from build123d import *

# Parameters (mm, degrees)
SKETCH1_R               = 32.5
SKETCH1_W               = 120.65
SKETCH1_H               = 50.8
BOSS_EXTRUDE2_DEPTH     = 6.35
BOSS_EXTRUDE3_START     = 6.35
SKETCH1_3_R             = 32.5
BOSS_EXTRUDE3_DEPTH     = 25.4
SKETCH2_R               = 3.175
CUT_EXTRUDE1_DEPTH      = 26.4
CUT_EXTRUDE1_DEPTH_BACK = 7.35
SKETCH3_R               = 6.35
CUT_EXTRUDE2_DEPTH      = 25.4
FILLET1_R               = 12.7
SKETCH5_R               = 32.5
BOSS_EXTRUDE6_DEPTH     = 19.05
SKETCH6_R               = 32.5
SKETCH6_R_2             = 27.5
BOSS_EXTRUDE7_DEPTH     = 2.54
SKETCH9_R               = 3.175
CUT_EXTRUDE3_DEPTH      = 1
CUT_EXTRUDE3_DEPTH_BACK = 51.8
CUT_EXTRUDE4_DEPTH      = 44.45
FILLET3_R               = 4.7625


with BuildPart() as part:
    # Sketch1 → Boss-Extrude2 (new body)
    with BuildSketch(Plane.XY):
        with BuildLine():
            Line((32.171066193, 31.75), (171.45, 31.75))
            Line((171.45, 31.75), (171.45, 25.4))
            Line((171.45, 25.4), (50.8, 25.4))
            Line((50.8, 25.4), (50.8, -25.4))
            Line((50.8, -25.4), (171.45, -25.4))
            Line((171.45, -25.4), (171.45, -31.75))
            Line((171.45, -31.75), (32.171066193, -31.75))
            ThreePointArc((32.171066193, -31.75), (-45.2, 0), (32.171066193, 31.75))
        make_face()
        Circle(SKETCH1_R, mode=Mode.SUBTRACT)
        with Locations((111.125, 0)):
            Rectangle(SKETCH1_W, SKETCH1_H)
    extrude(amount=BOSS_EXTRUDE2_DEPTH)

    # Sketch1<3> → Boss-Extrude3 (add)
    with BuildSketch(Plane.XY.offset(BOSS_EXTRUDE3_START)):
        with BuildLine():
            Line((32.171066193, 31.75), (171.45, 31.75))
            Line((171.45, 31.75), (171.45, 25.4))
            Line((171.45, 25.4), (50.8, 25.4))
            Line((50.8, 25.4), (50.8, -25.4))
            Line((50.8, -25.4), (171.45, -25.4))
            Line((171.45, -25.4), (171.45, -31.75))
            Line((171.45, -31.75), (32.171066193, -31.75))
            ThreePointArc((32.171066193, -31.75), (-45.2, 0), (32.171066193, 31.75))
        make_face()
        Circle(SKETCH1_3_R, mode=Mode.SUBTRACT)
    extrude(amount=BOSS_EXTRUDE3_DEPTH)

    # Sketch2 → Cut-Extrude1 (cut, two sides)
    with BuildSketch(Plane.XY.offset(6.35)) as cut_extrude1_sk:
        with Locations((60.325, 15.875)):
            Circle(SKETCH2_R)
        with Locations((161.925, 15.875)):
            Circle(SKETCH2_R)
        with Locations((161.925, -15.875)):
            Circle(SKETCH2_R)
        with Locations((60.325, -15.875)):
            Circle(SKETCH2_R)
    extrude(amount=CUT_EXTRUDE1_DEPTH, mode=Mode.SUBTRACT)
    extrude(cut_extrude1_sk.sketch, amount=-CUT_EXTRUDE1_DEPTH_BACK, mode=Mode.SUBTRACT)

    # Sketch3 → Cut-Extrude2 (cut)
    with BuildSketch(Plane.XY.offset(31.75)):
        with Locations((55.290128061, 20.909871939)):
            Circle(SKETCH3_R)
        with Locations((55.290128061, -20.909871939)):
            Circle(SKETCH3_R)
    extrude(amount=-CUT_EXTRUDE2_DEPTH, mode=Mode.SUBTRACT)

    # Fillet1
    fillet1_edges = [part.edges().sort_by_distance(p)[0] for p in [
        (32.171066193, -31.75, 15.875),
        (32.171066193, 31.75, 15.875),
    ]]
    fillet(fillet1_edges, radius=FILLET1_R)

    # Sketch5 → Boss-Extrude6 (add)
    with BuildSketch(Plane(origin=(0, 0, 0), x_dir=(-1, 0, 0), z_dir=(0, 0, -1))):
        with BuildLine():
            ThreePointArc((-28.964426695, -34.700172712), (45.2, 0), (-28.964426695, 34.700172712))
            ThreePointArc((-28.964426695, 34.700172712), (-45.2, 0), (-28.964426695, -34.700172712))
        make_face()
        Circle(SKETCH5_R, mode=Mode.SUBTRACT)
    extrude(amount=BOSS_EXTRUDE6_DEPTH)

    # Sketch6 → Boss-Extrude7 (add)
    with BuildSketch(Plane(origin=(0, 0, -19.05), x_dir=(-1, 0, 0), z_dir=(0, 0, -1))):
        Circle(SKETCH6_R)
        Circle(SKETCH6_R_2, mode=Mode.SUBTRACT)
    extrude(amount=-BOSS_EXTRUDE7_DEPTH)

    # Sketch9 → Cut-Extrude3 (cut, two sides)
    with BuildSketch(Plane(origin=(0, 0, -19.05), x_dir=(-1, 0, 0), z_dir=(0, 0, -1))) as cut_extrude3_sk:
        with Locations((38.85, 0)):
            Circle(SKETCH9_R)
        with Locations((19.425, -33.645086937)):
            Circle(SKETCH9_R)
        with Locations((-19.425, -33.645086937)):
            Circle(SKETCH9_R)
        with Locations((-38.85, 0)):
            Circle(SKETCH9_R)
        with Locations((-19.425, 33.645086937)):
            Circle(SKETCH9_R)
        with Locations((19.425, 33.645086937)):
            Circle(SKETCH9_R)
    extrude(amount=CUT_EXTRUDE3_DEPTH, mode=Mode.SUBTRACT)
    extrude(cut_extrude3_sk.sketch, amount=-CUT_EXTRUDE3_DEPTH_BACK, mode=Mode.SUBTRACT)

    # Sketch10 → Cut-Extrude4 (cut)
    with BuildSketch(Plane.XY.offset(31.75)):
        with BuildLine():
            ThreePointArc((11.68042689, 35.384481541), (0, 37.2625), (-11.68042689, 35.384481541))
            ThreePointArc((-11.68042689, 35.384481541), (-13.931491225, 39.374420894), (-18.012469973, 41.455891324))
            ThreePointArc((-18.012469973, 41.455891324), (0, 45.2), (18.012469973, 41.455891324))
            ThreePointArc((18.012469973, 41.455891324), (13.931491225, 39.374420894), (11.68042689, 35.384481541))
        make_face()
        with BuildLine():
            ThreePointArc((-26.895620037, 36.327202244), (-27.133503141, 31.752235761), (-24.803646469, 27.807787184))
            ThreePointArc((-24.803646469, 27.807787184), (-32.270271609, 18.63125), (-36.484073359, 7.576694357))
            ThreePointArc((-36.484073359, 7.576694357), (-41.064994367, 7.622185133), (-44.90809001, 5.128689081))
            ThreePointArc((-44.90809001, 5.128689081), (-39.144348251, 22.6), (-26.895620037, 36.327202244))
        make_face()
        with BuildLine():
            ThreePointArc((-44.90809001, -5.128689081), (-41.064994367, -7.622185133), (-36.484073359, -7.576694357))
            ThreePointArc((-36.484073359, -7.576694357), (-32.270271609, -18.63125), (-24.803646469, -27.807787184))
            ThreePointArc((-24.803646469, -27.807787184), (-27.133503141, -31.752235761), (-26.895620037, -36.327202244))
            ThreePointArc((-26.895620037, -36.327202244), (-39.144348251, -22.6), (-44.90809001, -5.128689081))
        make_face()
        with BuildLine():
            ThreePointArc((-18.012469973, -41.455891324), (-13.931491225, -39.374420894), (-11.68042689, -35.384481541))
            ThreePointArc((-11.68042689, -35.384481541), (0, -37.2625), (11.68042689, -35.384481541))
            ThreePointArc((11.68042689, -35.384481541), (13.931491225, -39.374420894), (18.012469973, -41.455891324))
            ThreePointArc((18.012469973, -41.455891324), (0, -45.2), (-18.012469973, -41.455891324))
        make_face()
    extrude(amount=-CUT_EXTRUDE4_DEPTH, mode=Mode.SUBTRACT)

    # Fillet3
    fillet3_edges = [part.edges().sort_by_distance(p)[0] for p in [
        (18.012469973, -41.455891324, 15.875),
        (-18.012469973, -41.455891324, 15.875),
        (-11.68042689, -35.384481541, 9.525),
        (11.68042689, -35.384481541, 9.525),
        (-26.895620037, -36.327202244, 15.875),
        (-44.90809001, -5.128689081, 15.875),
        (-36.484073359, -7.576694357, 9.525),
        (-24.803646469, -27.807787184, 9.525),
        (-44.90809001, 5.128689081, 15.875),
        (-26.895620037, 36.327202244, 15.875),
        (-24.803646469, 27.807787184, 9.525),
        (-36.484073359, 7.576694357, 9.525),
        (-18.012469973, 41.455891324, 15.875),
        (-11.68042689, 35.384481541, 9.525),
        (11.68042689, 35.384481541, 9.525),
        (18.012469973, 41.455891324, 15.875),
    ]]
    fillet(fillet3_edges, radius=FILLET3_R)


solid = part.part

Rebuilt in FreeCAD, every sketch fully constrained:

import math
import FreeCAD as App
import Part
import Sketcher
from FreeCAD import Vector
Q = App.Units.Quantity


def edges_at(feature, points):
    """Names of the edges that pass closest to the given points."""
    edges = feature.Shape.Edges
    near = lambda p: min(range(len(edges)), key=lambda i: edges[i].distToShape(Part.Vertex(*p))[0])
    return sorted({f"Edge{near(p) + 1}" for p in points})

doc = App.newDocument("Part")
body = doc.addObject("PartDesign::Body", "Body")

# Sketch on XY plane
sketch1 = body.newObject("Sketcher::SketchObject", "Sketch")
sketch1.AttachmentSupport = (doc.getObject("XY_Plane"), [""])
sketch1.MapMode = "FlatFace"
sketch1.addGeometry(Part.LineSegment(Vector(171, 32, 0), Vector(32, 32, 0)), False)
sketch1.addGeometry(Part.ArcOfCircle(Part.Circle(Vector(0, 0, 0), Vector(0, 0, 1), 45), math.radians(45), math.radians(315)), False)
sketch1.addGeometry(Part.LineSegment(Vector(32, -32, 0), Vector(171, -32, 0)), False)
sketch1.addGeometry(Part.LineSegment(Vector(171, -32, 0), Vector(171, 32, 0)), False)
sketch1.addGeometry(Part.Circle(Vector(0, 0, 0), Vector(0, 0, 1), 32), False)
sketch1.addConstraint(Sketcher.Constraint("Coincident", 0, 2, 1, 1))
sketch1.addConstraint(Sketcher.Constraint("Coincident", 1, 2, 2, 1))
sketch1.addConstraint(Sketcher.Constraint("Coincident", 2, 2, 3, 1))
sketch1.addConstraint(Sketcher.Constraint("Coincident", 3, 2, 0, 1))
sketch1.addConstraint(Sketcher.Constraint("Horizontal", 0))
sketch1.addConstraint(Sketcher.Constraint("Horizontal", 2))
sketch1.addConstraint(Sketcher.Constraint("Vertical", 3))
sketch1.addConstraint(Sketcher.Constraint("Coincident", 1, 3, -1, 1))
sketch1.addConstraint(Sketcher.Constraint("Coincident", 4, 3, -1, 1))
sketch1.addConstraint(Sketcher.Constraint("Vertical", 0, 2, 1, 2))
sketch1.addConstraint(Sketcher.Constraint("DistanceY", 3, 1, 3, 2, Q("2.5 in")))
sketch1.addConstraint(Sketcher.Constraint("Diameter", 4, Q("65 mm")))
sketch1.addConstraint(Sketcher.Constraint("DistanceX", -1, 1, 2, 2, Q("6.75 in")))
sketch1.addConstraint(Sketcher.Constraint("Radius", 1, Q("45.2 mm")))
pad1 = body.newObject("PartDesign::Pad", "Pad")
pad1.Profile = sketch1
pad1.Length = Q("0.25 in")

# Sketch on XY plane
sketch2 = body.newObject("Sketcher::SketchObject", "Sketch001")
sketch2.AttachmentSupport = (doc.getObject("XY_Plane"), [""])
sketch2.MapMode = "FlatFace"
sketch2.AttachmentOffset = App.Placement(Vector(0, 0, 0.25 * 25.4), App.Rotation())
sketch2.addGeometry(Part.LineSegment(Vector(171, 32, 0), Vector(32, 32, 0)), False)
sketch2.addGeometry(Part.ArcOfCircle(Part.Circle(Vector(0, 0, 0), Vector(0, 0, 1), 45), math.radians(45), math.radians(315)), False)
sketch2.addGeometry(Part.LineSegment(Vector(32, -32, 0), Vector(171, -32, 0)), False)
sketch2.addGeometry(Part.LineSegment(Vector(171, -32, 0), Vector(171, -25, 0)), False)
sketch2.addGeometry(Part.LineSegment(Vector(171, -25, 0), Vector(51, -25, 0)), False)
sketch2.addGeometry(Part.LineSegment(Vector(51, -25, 0), Vector(51, 25, 0)), False)
sketch2.addGeometry(Part.LineSegment(Vector(51, 25, 0), Vector(171, 25, 0)), False)
sketch2.addGeometry(Part.LineSegment(Vector(171, 25, 0), Vector(171, 32, 0)), False)
sketch2.addGeometry(Part.Circle(Vector(0, 0, 0), Vector(0, 0, 1), 32), False)
sketch2.addConstraint(Sketcher.Constraint("Coincident", 0, 2, 1, 1))
sketch2.addConstraint(Sketcher.Constraint("Coincident", 1, 2, 2, 1))
sketch2.addConstraint(Sketcher.Constraint("Coincident", 2, 2, 3, 1))
sketch2.addConstraint(Sketcher.Constraint("Coincident", 3, 2, 4, 1))
sketch2.addConstraint(Sketcher.Constraint("Coincident", 4, 2, 5, 1))
sketch2.addConstraint(Sketcher.Constraint("Coincident", 5, 2, 6, 1))
sketch2.addConstraint(Sketcher.Constraint("Coincident", 6, 2, 7, 1))
sketch2.addConstraint(Sketcher.Constraint("Coincident", 7, 2, 0, 1))
sketch2.addConstraint(Sketcher.Constraint("Horizontal", 0))
sketch2.addConstraint(Sketcher.Constraint("Horizontal", 2))
sketch2.addConstraint(Sketcher.Constraint("Vertical", 3))
sketch2.addConstraint(Sketcher.Constraint("Horizontal", 4))
sketch2.addConstraint(Sketcher.Constraint("Vertical", 5))
sketch2.addConstraint(Sketcher.Constraint("Horizontal", 6))
sketch2.addConstraint(Sketcher.Constraint("Vertical", 7))
sketch2.addConstraint(Sketcher.Constraint("Coincident", 1, 3, -1, 1))
sketch2.addConstraint(Sketcher.Constraint("Coincident", 8, 3, -1, 1))
sketch2.addConstraint(Sketcher.Constraint("Symmetric", 3, 2, 6, 2, -1))
sketch2.addConstraint(Sketcher.Constraint("Vertical", 0, 2, 1, 2))
sketch2.addConstraint(Sketcher.Constraint("DistanceY", 5, 1, 5, 2, Q("2 in")))
sketch2.addConstraint(Sketcher.Constraint("DistanceX", -1, 1, 4, 2, Q("2 in")))
sketch2.addConstraint(Sketcher.Constraint("DistanceX", 4, 2, 4, 1, Q("4.75 in")))
sketch2.addConstraint(Sketcher.Constraint("DistanceY", 3, 1, 3, 2, Q("0.25 in")))
sketch2.addConstraint(Sketcher.Constraint("Diameter", 8, Q("65 mm")))
sketch2.addConstraint(Sketcher.Constraint("Radius", 1, Q("45.2 mm")))
pad2 = body.newObject("PartDesign::Pad", "Pad001")
pad2.Profile = sketch2
pad2.Length = Q("1 in")

# Sketch on XY plane
sketch3 = body.newObject("Sketcher::SketchObject", "Sketch002")
sketch3.AttachmentSupport = (doc.getObject("XY_Plane"), [""])
sketch3.MapMode = "FlatFace"
sketch3.AttachmentOffset = App.Placement(Vector(0, 0, 0.25 * 25.4), App.Rotation())
sketch3.addGeometry(Part.Circle(Vector(60.3, 15.9, 0), Vector(0, 0, 1), 3.2), False)
sketch3.addGeometry(Part.Circle(Vector(161.9, 15.9, 0), Vector(0, 0, 1), 3.2), False)
sketch3.addGeometry(Part.Circle(Vector(161.9, -15.9, 0), Vector(0, 0, 1), 3.2), False)
sketch3.addGeometry(Part.Circle(Vector(60.3, -15.9, 0), Vector(0, 0, 1), 3.2), False)
sketch3.addConstraint(Sketcher.Constraint("Equal", 0, 1))
sketch3.addConstraint(Sketcher.Constraint("Equal", 1, 2))
sketch3.addConstraint(Sketcher.Constraint("Equal", 2, 3))
sketch3.addConstraint(Sketcher.Constraint("Symmetric", 1, 3, 2, 3, -1))
sketch3.addConstraint(Sketcher.Constraint("Symmetric", 0, 3, 3, 3, -1))
sketch3.addConstraint(Sketcher.Constraint("Horizontal", 0, 3, 1, 3))
sketch3.addConstraint(Sketcher.Constraint("Diameter", 0, Q("0.25 in")))
sketch3.addConstraint(Sketcher.Constraint("DistanceX", 0, 3, 1, 3, Q("4 in")))
sketch3.addConstraint(Sketcher.Constraint("DistanceY", 2, 3, 1, 3, Q("1.25 in")))
sketch3.addConstraint(Sketcher.Constraint("DistanceX", -1, 1, 0, 3, Q("2.375 in")))
pocket1 = body.newObject("PartDesign::Pocket", "Pocket")
pocket1.Profile = sketch3
pocket1.Type = "ThroughAll"
pocket1.Midplane = True

# Sketch on XY plane
sketch4 = body.newObject("Sketcher::SketchObject", "Sketch003")
sketch4.AttachmentSupport = (doc.getObject("XY_Plane"), [""])
sketch4.MapMode = "FlatFace"
sketch4.AttachmentOffset = App.Placement(Vector(0, 0, 1.25 * 25.4), App.Rotation())
sketch4.addGeometry(Part.Circle(Vector(55, 21, 0), Vector(0, 0, 1), 6), False)
sketch4.addGeometry(Part.Circle(Vector(55, -21, 0), Vector(0, 0, 1), 6), False)
sketch4.addConstraint(Sketcher.Constraint("Equal", 0, 1))
sketch4.addConstraint(Sketcher.Constraint("Symmetric", 0, 3, 1, 3, -1))
sketch4.addConstraint(Sketcher.Constraint("Diameter", 0, Q("0.5 in")))
sketch4.addConstraint(Sketcher.Constraint("DistanceX", -1, 1, 0, 3, Q("55.290128 mm")))
sketch4.addConstraint(Sketcher.Constraint("DistanceY", -1, 1, 0, 3, Q("20.909872 mm")))
pocket2 = body.newObject("PartDesign::Pocket", "Pocket001")
pocket2.Profile = sketch4
pocket2.Length = Q("1 in")
doc.recompute()

fillet = body.newObject("PartDesign::Fillet", "Fillet")
fillet.Base = (pocket2, edges_at(pocket2, [(32.171, -31.75, 15.875), (32.171, 31.75, 15.875)]))
fillet.Radius = Q("0.5 in")

# Sketch on XY plane
sketch5 = body.newObject("Sketcher::SketchObject", "Sketch004")
sketch5.AttachmentSupport = (doc.getObject("XY_Plane"), [""])
sketch5.MapMode = "FlatFace"
sketch5.addGeometry(Part.ArcOfCircle(Part.Circle(Vector(0, 0, 0), Vector(0, 0, 1), 45), math.radians(50), math.radians(310)), False)
sketch5.addGeometry(Part.ArcOfCircle(Part.Circle(Vector(0, 0, 0), Vector(0, 0, 1), 45), math.radians(-50), math.radians(50)), False)
sketch5.addGeometry(Part.Circle(Vector(0, 0, 0), Vector(0, 0, 1), 32), False)
sketch5.addConstraint(Sketcher.Constraint("Tangent", 0, 1, 1, 2))
sketch5.addConstraint(Sketcher.Constraint("Coincident", 1, 1, 0, 2))
sketch5.addConstraint(Sketcher.Constraint("Coincident", 0, 3, -1, 1))
sketch5.addConstraint(Sketcher.Constraint("Coincident", 2, 3, -1, 1))
sketch5.addConstraint(Sketcher.Constraint("Vertical", 0, 1, 1, 1))
sketch5.addConstraint(Sketcher.Constraint("Diameter", 2, Q("65 mm")))
sketch5.addConstraint(Sketcher.Constraint("Radius", 0, Q("45.2 mm")))
sketch5.addConstraint(Sketcher.Constraint("DistanceX", -1, 1, 0, 1, Q("28.964427 mm")))
pad3 = body.newObject("PartDesign::Pad", "Pad002")
pad3.Profile = sketch5
pad3.Length = Q("0.75 in")
pad3.Reversed = True

# Sketch on XY plane
sketch6 = body.newObject("Sketcher::SketchObject", "Sketch005")
sketch6.AttachmentSupport = (doc.getObject("XY_Plane"), [""])
sketch6.MapMode = "FlatFace"
sketch6.AttachmentOffset = App.Placement(Vector(0, 0, -0.75 * 25.4), App.Rotation())
sketch6.addGeometry(Part.Circle(Vector(0, 0, 0), Vector(0, 0, 1), 32), False)
sketch6.addGeometry(Part.Circle(Vector(0, 0, 0), Vector(0, 0, 1), 28), False)
sketch6.addConstraint(Sketcher.Constraint("Coincident", 0, 3, -1, 1))
sketch6.addConstraint(Sketcher.Constraint("Coincident", 1, 3, -1, 1))
sketch6.addConstraint(Sketcher.Constraint("Diameter", 0, Q("65 mm")))
sketch6.addConstraint(Sketcher.Constraint("Diameter", 1, Q("55 mm")))
pad4 = body.newObject("PartDesign::Pad", "Pad003")
pad4.Profile = sketch6
pad4.Length = Q("0.1 in")

# Sketch on XY plane
sketch7 = body.newObject("Sketcher::SketchObject", "Sketch006")
sketch7.AttachmentSupport = (doc.getObject("XY_Plane"), [""])
sketch7.MapMode = "FlatFace"
sketch7.AttachmentOffset = App.Placement(Vector(0, 0, -0.75 * 25.4), App.Rotation())
sketch7.addGeometry(Part.Circle(Vector(-38.9, 0, 0), Vector(0, 0, 1), 3.2), False)
sketch7.addGeometry(Part.Circle(Vector(-19.4, -33.6, 0), Vector(0, 0, 1), 3.2), False)
sketch7.addGeometry(Part.Circle(Vector(19.4, -33.6, 0), Vector(0, 0, 1), 3.2), False)
sketch7.addGeometry(Part.Circle(Vector(38.9, 0, 0), Vector(0, 0, 1), 3.2), False)
sketch7.addGeometry(Part.Circle(Vector(19.4, 33.6, 0), Vector(0, 0, 1), 3.2), False)
sketch7.addGeometry(Part.Circle(Vector(-19.4, 33.6, 0), Vector(0, 0, 1), 3.2), False)
sketch7.addConstraint(Sketcher.Constraint("Equal", 0, 1))
sketch7.addConstraint(Sketcher.Constraint("Equal", 1, 2))
sketch7.addConstraint(Sketcher.Constraint("Equal", 2, 3))
sketch7.addConstraint(Sketcher.Constraint("Equal", 3, 4))
sketch7.addConstraint(Sketcher.Constraint("Equal", 4, 5))
sketch7.addConstraint(Sketcher.Constraint("Symmetric", 0, 3, 3, 3, -1, 1))
sketch7.addConstraint(Sketcher.Constraint("Symmetric", 1, 3, 4, 3, -1, 1))
sketch7.addConstraint(Sketcher.Constraint("Symmetric", 2, 3, 5, 3, -1, 1))
sketch7.addConstraint(Sketcher.Constraint("Symmetric", 1, 3, 2, 3, -2))
sketch7.addConstraint(Sketcher.Constraint("PointOnObject", 0, 3, -1))
sketch7.addConstraint(Sketcher.Constraint("Diameter", 0, Q("0.25 in")))
sketch7.addConstraint(Sketcher.Constraint("DistanceX", 0, 3, -1, 1, Q("38.85 mm")))
sketch7.addConstraint(Sketcher.Constraint("DistanceX", 1, 3, -1, 1, Q("19.425 mm")))
sketch7.addConstraint(Sketcher.Constraint("DistanceY", 1, 3, -1, 1, Q("33.645087 mm")))
pocket3 = body.newObject("PartDesign::Pocket", "Pocket002")
pocket3.Profile = sketch7
pocket3.Type = "ThroughAll"
pocket3.Midplane = True

# Sketch on XY plane
sketch8 = body.newObject("Sketcher::SketchObject", "Sketch007")
sketch8.AttachmentSupport = (doc.getObject("XY_Plane"), [""])
sketch8.MapMode = "FlatFace"
sketch8.AttachmentOffset = App.Placement(Vector(0, 0, 1.25 * 25.4), App.Rotation())
sketch8.addGeometry(Part.ArcOfCircle(Part.Circle(Vector(0, 0, 0), Vector(0, 0, 1), 37), math.radians(72), math.radians(108)), False)
sketch8.addGeometry(Part.ArcOfCircle(Part.Circle(Vector(19, 34, 0), Vector(0, 0, 1), 8), math.radians(100), math.radians(167)), False)
sketch8.addGeometry(Part.ArcOfCircle(Part.Circle(Vector(0, 0, 0), Vector(0, 0, 1), 45), math.radians(67), math.radians(113)), False)
sketch8.addGeometry(Part.ArcOfCircle(Part.Circle(Vector(-19, 34, 0), Vector(0, 0, 1), 8), math.radians(13), math.radians(80)), False)
sketch8.addGeometry(Part.ArcOfCircle(Part.Circle(Vector(-19, 34, 0), Vector(0, 0, 1), 8), math.radians(160), math.radians(227)), False)
sketch8.addGeometry(Part.ArcOfCircle(Part.Circle(Vector(0, 0, 0), Vector(0, 0, 1), 45), math.radians(127), math.radians(173)), False)
sketch8.addGeometry(Part.ArcOfCircle(Part.Circle(Vector(-39, 0, 0), Vector(0, 0, 1), 8), math.radians(73), math.radians(140)), False)
sketch8.addGeometry(Part.ArcOfCircle(Part.Circle(Vector(0, 0, 0), Vector(0, 0, 1), 37), math.radians(132), math.radians(168)), False)
sketch8.addGeometry(Part.ArcOfCircle(Part.Circle(Vector(-39, 0, 0), Vector(0, 0, 1), 8), math.radians(-140), math.radians(-73)), False)
sketch8.addGeometry(Part.ArcOfCircle(Part.Circle(Vector(0, 0, 0), Vector(0, 0, 1), 45), math.radians(-173), math.radians(-127)), False)
sketch8.addGeometry(Part.ArcOfCircle(Part.Circle(Vector(-19, -34, 0), Vector(0, 0, 1), 8), math.radians(133), math.radians(200)), False)
sketch8.addGeometry(Part.ArcOfCircle(Part.Circle(Vector(0, 0, 0), Vector(0, 0, 1), 37), math.radians(-168), math.radians(-132)), False)
sketch8.addGeometry(Part.ArcOfCircle(Part.Circle(Vector(-19, -34, 0), Vector(0, 0, 1), 8), math.radians(-80), math.radians(-13)), False)
sketch8.addGeometry(Part.ArcOfCircle(Part.Circle(Vector(0, 0, 0), Vector(0, 0, 1), 45), math.radians(-113), math.radians(-67)), False)
sketch8.addGeometry(Part.ArcOfCircle(Part.Circle(Vector(19, -34, 0), Vector(0, 0, 1), 8), math.radians(-167), math.radians(-100)), False)
sketch8.addGeometry(Part.ArcOfCircle(Part.Circle(Vector(0, 0, 0), Vector(0, 0, 1), 37), math.radians(-108), math.radians(-72)), False)
sketch8.addConstraint(Sketcher.Constraint("Coincident", 0, 1, 1, 2))
sketch8.addConstraint(Sketcher.Constraint("Coincident", 1, 1, 2, 1))
sketch8.addConstraint(Sketcher.Constraint("Coincident", 2, 2, 3, 2))
sketch8.addConstraint(Sketcher.Constraint("Coincident", 3, 1, 0, 2))
sketch8.addConstraint(Sketcher.Constraint("Coincident", 4, 1, 5, 1))
sketch8.addConstraint(Sketcher.Constraint("Coincident", 5, 2, 6, 2))
sketch8.addConstraint(Sketcher.Constraint("Coincident", 6, 1, 7, 2))
sketch8.addConstraint(Sketcher.Constraint("Coincident", 7, 1, 4, 2))
sketch8.addConstraint(Sketcher.Constraint("Coincident", 8, 1, 9, 1))
sketch8.addConstraint(Sketcher.Constraint("Coincident", 9, 2, 10, 2))
sketch8.addConstraint(Sketcher.Constraint("Coincident", 10, 1, 11, 2))
sketch8.addConstraint(Sketcher.Constraint("Coincident", 11, 1, 8, 2))
sketch8.addConstraint(Sketcher.Constraint("Coincident", 12, 1, 13, 1))
sketch8.addConstraint(Sketcher.Constraint("Coincident", 13, 2, 14, 2))
sketch8.addConstraint(Sketcher.Constraint("Coincident", 14, 1, 15, 2))
sketch8.addConstraint(Sketcher.Constraint("Coincident", 15, 1, 12, 2))
sketch8.addConstraint(Sketcher.Constraint("Coincident", 0, 3, -1, 1))
sketch8.addConstraint(Sketcher.Constraint("Coincident", 2, 3, -1, 1))
sketch8.addConstraint(Sketcher.Constraint("Coincident", 5, 3, -1, 1))
sketch8.addConstraint(Sketcher.Constraint("Coincident", 7, 3, -1, 1))
sketch8.addConstraint(Sketcher.Constraint("Coincident", 9, 3, -1, 1))
sketch8.addConstraint(Sketcher.Constraint("Coincident", 11, 3, -1, 1))
sketch8.addConstraint(Sketcher.Constraint("Coincident", 13, 3, -1, 1))
sketch8.addConstraint(Sketcher.Constraint("Coincident", 15, 3, -1, 1))
sketch8.addConstraint(Sketcher.Constraint("Coincident", 4, 3, 3, 3))
sketch8.addConstraint(Sketcher.Constraint("Coincident", 8, 3, 6, 3))
sketch8.addConstraint(Sketcher.Constraint("Coincident", 12, 3, 10, 3))
sketch8.addConstraint(Sketcher.Constraint("Equal", 1, 3))
sketch8.addConstraint(Sketcher.Constraint("Equal", 3, 4))
sketch8.addConstraint(Sketcher.Constraint("Equal", 2, 5))
sketch8.addConstraint(Sketcher.Constraint("Equal", 4, 6))
sketch8.addConstraint(Sketcher.Constraint("Equal", 0, 7))
sketch8.addConstraint(Sketcher.Constraint("Equal", 6, 8))
sketch8.addConstraint(Sketcher.Constraint("Equal", 5, 9))
sketch8.addConstraint(Sketcher.Constraint("Equal", 8, 10))
sketch8.addConstraint(Sketcher.Constraint("Equal", 7, 11))
sketch8.addConstraint(Sketcher.Constraint("Equal", 10, 12))
sketch8.addConstraint(Sketcher.Constraint("Equal", 9, 13))
sketch8.addConstraint(Sketcher.Constraint("Equal", 12, 14))
sketch8.addConstraint(Sketcher.Constraint("Equal", 11, 15))
sketch8.addConstraint(Sketcher.Constraint("Symmetric", 1, 3, 10, 3, -1, 1))
sketch8.addConstraint(Sketcher.Constraint("Symmetric", 3, 3, 14, 3, -1, 1))
sketch8.addConstraint(Sketcher.Constraint("Symmetric", 1, 3, 3, 3, -2))
sketch8.addConstraint(Sketcher.Constraint("PointOnObject", 6, 3, -1))
sketch8.addConstraint(Sketcher.Constraint("Radius", 1, Q("0.3125 in")))
sketch8.addConstraint(Sketcher.Constraint("Radius", 0, Q("37.2625 mm")))
sketch8.addConstraint(Sketcher.Constraint("Radius", 2, Q("45.2 mm")))
sketch8.addConstraint(Sketcher.Constraint("DistanceX", -1, 1, 1, 3, Q("19.425 mm")))
sketch8.addConstraint(Sketcher.Constraint("DistanceX", 6, 3, -1, 1, Q("38.85 mm")))
sketch8.addConstraint(Sketcher.Constraint("DistanceY", 7, 1, 4, 3, Q("5.8373 mm")))
pocket4 = body.newObject("PartDesign::Pocket", "Pocket003")
pocket4.Profile = sketch8
pocket4.Length = Q("1.75 in")
doc.recompute()

fillet2 = body.newObject("PartDesign::Fillet", "Fillet001")
fillet2.Base = (pocket4, edges_at(pocket4, [
    (18.012, -41.456, 15.875),
    (-18.012, -41.456, 15.875),
    (-11.68, -35.384, 9.525),
    (11.68, -35.384, 9.525),
    (-26.896, -36.327, 15.875),
    (-44.908, -5.129, 15.875),
    (-36.484, -7.577, 9.525),
    (-24.804, -27.808, 9.525),
    (-44.908, 5.129, 15.875),
    (-26.896, 36.327, 15.875),
    (-24.804, 27.808, 9.525),
    (-36.484, 7.577, 9.525),
    (-18.012, 41.456, 15.875),
    (-11.68, 35.384, 9.525),
    (11.68, 35.384, 9.525),
    (18.012, 41.456, 15.875),
]))
fillet2.Radius = Q("0.1875 in")

doc.recompute()
